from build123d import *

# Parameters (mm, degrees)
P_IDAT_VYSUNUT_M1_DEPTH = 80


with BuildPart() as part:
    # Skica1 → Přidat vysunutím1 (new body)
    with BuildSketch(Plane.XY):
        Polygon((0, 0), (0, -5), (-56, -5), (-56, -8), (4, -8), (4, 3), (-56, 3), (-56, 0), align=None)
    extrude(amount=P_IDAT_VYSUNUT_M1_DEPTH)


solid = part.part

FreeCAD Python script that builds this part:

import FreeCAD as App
import Part
import Sketcher
from FreeCAD import Vector

doc = App.newDocument("Part")
body = doc.addObject("PartDesign::Body", "Body")

# Sketch on XY plane
sketch1 = body.newObject("Sketcher::SketchObject", "Sketch")
sketch1.AttachmentSupport = (doc.getObject("XY_Plane"), [""])
sketch1.MapMode = "FlatFace"
sketch1.addGeometry(Part.LineSegment(Vector(0, 0, 0), Vector(0, -5, 0)), False)
sketch1.addGeometry(Part.LineSegment(Vector(0, -5, 0), Vector(-56, -5, 0)), False)
sketch1.addGeometry(Part.LineSegment(Vector(-56, -5, 0), Vector(-56, -8, 0)), False)
sketch1.addGeometry(Part.LineSegment(Vector(-56, -8, 0), Vector(4, -8, 0)), False)
sketch1.addGeometry(Part.LineSegment(Vector(4, -8, 0), Vector(4, 3, 0)), False)
sketch1.addGeometry(Part.LineSegment(Vector(4, 3, 0), Vector(-56, 3, 0)), False)
sketch1.addGeometry(Part.LineSegment(Vector(-56, 3, 0), Vector(-56, 0, 0)), False)
sketch1.addGeometry(Part.LineSegment(Vector(-56, 0, 0), Vector(0, 0, 0)), False)
sketch1.addConstraint(Sketcher.Constraint("Coincident", 0, 2, 1, 1))
sketch1.addConstraint(Sketcher.Constraint("Coincident", 1, 2, 2, 1))
sketch1.addConstraint(Sketcher.Constraint("Coincident", 2, 2, 3, 1))
sketch1.addConstraint(Sketcher.Constraint("Coincident", 3, 2, 4, 1))
sketch1.addConstraint(Sketcher.Constraint("Coincident", 4, 2, 5, 1))
sketch1.addConstraint(Sketcher.Constraint("Coincident", 5, 2, 6, 1))
sketch1.addConstraint(Sketcher.Constraint("Coincident", 6, 2, 7, 1))
sketch1.addConstraint(Sketcher.Constraint("Coincident", 7, 2, 0, 1))
sketch1.addConstraint(Sketcher.Constraint("Vertical", 0))
sketch1.addConstraint(Sketcher.Constraint("Horizontal", 1))
sketch1.addConstraint(Sketcher.Constraint("Vertical", 2))
sketch1.addConstraint(Sketcher.Constraint("Horizontal", 3))
sketch1.addConstraint(Sketcher.Constraint("Vertical", 4))
sketch1.addConstraint(Sketcher.Constraint("Horizontal", 5))
sketch1.addConstraint(Sketcher.Constraint("Vertical", 6))
sketch1.addConstraint(Sketcher.Constraint("Horizontal", 7))
sketch1.addConstraint(Sketcher.Constraint("Coincident", 7, 2, -1, 1))
sketch1.addConstraint(Sketcher.Constraint("Vertical", 2, 2, 5, 2))
sketch1.addConstraint(Sketcher.Constraint("Equal", 2, 6))
sketch1.addConstraint(Sketcher.Constraint("DistanceX", 1, 2, 1, 1, 56.0))
sketch1.addConstraint(Sketcher.Constraint("DistanceX", 3, 1, 3, 2, 60.0))
sketch1.addConstraint(Sketcher.Constraint("DistanceY", 0, 2, 0, 1, 5.0))
sketch1.addConstraint(Sketcher.Constraint("DistanceY", 2, 2, 2, 1, 3.0))
pad1 = body.newObject("PartDesign::Pad", "Pad")
pad1.Profile = sketch1
pad1.Length = 80

doc.recompute()
